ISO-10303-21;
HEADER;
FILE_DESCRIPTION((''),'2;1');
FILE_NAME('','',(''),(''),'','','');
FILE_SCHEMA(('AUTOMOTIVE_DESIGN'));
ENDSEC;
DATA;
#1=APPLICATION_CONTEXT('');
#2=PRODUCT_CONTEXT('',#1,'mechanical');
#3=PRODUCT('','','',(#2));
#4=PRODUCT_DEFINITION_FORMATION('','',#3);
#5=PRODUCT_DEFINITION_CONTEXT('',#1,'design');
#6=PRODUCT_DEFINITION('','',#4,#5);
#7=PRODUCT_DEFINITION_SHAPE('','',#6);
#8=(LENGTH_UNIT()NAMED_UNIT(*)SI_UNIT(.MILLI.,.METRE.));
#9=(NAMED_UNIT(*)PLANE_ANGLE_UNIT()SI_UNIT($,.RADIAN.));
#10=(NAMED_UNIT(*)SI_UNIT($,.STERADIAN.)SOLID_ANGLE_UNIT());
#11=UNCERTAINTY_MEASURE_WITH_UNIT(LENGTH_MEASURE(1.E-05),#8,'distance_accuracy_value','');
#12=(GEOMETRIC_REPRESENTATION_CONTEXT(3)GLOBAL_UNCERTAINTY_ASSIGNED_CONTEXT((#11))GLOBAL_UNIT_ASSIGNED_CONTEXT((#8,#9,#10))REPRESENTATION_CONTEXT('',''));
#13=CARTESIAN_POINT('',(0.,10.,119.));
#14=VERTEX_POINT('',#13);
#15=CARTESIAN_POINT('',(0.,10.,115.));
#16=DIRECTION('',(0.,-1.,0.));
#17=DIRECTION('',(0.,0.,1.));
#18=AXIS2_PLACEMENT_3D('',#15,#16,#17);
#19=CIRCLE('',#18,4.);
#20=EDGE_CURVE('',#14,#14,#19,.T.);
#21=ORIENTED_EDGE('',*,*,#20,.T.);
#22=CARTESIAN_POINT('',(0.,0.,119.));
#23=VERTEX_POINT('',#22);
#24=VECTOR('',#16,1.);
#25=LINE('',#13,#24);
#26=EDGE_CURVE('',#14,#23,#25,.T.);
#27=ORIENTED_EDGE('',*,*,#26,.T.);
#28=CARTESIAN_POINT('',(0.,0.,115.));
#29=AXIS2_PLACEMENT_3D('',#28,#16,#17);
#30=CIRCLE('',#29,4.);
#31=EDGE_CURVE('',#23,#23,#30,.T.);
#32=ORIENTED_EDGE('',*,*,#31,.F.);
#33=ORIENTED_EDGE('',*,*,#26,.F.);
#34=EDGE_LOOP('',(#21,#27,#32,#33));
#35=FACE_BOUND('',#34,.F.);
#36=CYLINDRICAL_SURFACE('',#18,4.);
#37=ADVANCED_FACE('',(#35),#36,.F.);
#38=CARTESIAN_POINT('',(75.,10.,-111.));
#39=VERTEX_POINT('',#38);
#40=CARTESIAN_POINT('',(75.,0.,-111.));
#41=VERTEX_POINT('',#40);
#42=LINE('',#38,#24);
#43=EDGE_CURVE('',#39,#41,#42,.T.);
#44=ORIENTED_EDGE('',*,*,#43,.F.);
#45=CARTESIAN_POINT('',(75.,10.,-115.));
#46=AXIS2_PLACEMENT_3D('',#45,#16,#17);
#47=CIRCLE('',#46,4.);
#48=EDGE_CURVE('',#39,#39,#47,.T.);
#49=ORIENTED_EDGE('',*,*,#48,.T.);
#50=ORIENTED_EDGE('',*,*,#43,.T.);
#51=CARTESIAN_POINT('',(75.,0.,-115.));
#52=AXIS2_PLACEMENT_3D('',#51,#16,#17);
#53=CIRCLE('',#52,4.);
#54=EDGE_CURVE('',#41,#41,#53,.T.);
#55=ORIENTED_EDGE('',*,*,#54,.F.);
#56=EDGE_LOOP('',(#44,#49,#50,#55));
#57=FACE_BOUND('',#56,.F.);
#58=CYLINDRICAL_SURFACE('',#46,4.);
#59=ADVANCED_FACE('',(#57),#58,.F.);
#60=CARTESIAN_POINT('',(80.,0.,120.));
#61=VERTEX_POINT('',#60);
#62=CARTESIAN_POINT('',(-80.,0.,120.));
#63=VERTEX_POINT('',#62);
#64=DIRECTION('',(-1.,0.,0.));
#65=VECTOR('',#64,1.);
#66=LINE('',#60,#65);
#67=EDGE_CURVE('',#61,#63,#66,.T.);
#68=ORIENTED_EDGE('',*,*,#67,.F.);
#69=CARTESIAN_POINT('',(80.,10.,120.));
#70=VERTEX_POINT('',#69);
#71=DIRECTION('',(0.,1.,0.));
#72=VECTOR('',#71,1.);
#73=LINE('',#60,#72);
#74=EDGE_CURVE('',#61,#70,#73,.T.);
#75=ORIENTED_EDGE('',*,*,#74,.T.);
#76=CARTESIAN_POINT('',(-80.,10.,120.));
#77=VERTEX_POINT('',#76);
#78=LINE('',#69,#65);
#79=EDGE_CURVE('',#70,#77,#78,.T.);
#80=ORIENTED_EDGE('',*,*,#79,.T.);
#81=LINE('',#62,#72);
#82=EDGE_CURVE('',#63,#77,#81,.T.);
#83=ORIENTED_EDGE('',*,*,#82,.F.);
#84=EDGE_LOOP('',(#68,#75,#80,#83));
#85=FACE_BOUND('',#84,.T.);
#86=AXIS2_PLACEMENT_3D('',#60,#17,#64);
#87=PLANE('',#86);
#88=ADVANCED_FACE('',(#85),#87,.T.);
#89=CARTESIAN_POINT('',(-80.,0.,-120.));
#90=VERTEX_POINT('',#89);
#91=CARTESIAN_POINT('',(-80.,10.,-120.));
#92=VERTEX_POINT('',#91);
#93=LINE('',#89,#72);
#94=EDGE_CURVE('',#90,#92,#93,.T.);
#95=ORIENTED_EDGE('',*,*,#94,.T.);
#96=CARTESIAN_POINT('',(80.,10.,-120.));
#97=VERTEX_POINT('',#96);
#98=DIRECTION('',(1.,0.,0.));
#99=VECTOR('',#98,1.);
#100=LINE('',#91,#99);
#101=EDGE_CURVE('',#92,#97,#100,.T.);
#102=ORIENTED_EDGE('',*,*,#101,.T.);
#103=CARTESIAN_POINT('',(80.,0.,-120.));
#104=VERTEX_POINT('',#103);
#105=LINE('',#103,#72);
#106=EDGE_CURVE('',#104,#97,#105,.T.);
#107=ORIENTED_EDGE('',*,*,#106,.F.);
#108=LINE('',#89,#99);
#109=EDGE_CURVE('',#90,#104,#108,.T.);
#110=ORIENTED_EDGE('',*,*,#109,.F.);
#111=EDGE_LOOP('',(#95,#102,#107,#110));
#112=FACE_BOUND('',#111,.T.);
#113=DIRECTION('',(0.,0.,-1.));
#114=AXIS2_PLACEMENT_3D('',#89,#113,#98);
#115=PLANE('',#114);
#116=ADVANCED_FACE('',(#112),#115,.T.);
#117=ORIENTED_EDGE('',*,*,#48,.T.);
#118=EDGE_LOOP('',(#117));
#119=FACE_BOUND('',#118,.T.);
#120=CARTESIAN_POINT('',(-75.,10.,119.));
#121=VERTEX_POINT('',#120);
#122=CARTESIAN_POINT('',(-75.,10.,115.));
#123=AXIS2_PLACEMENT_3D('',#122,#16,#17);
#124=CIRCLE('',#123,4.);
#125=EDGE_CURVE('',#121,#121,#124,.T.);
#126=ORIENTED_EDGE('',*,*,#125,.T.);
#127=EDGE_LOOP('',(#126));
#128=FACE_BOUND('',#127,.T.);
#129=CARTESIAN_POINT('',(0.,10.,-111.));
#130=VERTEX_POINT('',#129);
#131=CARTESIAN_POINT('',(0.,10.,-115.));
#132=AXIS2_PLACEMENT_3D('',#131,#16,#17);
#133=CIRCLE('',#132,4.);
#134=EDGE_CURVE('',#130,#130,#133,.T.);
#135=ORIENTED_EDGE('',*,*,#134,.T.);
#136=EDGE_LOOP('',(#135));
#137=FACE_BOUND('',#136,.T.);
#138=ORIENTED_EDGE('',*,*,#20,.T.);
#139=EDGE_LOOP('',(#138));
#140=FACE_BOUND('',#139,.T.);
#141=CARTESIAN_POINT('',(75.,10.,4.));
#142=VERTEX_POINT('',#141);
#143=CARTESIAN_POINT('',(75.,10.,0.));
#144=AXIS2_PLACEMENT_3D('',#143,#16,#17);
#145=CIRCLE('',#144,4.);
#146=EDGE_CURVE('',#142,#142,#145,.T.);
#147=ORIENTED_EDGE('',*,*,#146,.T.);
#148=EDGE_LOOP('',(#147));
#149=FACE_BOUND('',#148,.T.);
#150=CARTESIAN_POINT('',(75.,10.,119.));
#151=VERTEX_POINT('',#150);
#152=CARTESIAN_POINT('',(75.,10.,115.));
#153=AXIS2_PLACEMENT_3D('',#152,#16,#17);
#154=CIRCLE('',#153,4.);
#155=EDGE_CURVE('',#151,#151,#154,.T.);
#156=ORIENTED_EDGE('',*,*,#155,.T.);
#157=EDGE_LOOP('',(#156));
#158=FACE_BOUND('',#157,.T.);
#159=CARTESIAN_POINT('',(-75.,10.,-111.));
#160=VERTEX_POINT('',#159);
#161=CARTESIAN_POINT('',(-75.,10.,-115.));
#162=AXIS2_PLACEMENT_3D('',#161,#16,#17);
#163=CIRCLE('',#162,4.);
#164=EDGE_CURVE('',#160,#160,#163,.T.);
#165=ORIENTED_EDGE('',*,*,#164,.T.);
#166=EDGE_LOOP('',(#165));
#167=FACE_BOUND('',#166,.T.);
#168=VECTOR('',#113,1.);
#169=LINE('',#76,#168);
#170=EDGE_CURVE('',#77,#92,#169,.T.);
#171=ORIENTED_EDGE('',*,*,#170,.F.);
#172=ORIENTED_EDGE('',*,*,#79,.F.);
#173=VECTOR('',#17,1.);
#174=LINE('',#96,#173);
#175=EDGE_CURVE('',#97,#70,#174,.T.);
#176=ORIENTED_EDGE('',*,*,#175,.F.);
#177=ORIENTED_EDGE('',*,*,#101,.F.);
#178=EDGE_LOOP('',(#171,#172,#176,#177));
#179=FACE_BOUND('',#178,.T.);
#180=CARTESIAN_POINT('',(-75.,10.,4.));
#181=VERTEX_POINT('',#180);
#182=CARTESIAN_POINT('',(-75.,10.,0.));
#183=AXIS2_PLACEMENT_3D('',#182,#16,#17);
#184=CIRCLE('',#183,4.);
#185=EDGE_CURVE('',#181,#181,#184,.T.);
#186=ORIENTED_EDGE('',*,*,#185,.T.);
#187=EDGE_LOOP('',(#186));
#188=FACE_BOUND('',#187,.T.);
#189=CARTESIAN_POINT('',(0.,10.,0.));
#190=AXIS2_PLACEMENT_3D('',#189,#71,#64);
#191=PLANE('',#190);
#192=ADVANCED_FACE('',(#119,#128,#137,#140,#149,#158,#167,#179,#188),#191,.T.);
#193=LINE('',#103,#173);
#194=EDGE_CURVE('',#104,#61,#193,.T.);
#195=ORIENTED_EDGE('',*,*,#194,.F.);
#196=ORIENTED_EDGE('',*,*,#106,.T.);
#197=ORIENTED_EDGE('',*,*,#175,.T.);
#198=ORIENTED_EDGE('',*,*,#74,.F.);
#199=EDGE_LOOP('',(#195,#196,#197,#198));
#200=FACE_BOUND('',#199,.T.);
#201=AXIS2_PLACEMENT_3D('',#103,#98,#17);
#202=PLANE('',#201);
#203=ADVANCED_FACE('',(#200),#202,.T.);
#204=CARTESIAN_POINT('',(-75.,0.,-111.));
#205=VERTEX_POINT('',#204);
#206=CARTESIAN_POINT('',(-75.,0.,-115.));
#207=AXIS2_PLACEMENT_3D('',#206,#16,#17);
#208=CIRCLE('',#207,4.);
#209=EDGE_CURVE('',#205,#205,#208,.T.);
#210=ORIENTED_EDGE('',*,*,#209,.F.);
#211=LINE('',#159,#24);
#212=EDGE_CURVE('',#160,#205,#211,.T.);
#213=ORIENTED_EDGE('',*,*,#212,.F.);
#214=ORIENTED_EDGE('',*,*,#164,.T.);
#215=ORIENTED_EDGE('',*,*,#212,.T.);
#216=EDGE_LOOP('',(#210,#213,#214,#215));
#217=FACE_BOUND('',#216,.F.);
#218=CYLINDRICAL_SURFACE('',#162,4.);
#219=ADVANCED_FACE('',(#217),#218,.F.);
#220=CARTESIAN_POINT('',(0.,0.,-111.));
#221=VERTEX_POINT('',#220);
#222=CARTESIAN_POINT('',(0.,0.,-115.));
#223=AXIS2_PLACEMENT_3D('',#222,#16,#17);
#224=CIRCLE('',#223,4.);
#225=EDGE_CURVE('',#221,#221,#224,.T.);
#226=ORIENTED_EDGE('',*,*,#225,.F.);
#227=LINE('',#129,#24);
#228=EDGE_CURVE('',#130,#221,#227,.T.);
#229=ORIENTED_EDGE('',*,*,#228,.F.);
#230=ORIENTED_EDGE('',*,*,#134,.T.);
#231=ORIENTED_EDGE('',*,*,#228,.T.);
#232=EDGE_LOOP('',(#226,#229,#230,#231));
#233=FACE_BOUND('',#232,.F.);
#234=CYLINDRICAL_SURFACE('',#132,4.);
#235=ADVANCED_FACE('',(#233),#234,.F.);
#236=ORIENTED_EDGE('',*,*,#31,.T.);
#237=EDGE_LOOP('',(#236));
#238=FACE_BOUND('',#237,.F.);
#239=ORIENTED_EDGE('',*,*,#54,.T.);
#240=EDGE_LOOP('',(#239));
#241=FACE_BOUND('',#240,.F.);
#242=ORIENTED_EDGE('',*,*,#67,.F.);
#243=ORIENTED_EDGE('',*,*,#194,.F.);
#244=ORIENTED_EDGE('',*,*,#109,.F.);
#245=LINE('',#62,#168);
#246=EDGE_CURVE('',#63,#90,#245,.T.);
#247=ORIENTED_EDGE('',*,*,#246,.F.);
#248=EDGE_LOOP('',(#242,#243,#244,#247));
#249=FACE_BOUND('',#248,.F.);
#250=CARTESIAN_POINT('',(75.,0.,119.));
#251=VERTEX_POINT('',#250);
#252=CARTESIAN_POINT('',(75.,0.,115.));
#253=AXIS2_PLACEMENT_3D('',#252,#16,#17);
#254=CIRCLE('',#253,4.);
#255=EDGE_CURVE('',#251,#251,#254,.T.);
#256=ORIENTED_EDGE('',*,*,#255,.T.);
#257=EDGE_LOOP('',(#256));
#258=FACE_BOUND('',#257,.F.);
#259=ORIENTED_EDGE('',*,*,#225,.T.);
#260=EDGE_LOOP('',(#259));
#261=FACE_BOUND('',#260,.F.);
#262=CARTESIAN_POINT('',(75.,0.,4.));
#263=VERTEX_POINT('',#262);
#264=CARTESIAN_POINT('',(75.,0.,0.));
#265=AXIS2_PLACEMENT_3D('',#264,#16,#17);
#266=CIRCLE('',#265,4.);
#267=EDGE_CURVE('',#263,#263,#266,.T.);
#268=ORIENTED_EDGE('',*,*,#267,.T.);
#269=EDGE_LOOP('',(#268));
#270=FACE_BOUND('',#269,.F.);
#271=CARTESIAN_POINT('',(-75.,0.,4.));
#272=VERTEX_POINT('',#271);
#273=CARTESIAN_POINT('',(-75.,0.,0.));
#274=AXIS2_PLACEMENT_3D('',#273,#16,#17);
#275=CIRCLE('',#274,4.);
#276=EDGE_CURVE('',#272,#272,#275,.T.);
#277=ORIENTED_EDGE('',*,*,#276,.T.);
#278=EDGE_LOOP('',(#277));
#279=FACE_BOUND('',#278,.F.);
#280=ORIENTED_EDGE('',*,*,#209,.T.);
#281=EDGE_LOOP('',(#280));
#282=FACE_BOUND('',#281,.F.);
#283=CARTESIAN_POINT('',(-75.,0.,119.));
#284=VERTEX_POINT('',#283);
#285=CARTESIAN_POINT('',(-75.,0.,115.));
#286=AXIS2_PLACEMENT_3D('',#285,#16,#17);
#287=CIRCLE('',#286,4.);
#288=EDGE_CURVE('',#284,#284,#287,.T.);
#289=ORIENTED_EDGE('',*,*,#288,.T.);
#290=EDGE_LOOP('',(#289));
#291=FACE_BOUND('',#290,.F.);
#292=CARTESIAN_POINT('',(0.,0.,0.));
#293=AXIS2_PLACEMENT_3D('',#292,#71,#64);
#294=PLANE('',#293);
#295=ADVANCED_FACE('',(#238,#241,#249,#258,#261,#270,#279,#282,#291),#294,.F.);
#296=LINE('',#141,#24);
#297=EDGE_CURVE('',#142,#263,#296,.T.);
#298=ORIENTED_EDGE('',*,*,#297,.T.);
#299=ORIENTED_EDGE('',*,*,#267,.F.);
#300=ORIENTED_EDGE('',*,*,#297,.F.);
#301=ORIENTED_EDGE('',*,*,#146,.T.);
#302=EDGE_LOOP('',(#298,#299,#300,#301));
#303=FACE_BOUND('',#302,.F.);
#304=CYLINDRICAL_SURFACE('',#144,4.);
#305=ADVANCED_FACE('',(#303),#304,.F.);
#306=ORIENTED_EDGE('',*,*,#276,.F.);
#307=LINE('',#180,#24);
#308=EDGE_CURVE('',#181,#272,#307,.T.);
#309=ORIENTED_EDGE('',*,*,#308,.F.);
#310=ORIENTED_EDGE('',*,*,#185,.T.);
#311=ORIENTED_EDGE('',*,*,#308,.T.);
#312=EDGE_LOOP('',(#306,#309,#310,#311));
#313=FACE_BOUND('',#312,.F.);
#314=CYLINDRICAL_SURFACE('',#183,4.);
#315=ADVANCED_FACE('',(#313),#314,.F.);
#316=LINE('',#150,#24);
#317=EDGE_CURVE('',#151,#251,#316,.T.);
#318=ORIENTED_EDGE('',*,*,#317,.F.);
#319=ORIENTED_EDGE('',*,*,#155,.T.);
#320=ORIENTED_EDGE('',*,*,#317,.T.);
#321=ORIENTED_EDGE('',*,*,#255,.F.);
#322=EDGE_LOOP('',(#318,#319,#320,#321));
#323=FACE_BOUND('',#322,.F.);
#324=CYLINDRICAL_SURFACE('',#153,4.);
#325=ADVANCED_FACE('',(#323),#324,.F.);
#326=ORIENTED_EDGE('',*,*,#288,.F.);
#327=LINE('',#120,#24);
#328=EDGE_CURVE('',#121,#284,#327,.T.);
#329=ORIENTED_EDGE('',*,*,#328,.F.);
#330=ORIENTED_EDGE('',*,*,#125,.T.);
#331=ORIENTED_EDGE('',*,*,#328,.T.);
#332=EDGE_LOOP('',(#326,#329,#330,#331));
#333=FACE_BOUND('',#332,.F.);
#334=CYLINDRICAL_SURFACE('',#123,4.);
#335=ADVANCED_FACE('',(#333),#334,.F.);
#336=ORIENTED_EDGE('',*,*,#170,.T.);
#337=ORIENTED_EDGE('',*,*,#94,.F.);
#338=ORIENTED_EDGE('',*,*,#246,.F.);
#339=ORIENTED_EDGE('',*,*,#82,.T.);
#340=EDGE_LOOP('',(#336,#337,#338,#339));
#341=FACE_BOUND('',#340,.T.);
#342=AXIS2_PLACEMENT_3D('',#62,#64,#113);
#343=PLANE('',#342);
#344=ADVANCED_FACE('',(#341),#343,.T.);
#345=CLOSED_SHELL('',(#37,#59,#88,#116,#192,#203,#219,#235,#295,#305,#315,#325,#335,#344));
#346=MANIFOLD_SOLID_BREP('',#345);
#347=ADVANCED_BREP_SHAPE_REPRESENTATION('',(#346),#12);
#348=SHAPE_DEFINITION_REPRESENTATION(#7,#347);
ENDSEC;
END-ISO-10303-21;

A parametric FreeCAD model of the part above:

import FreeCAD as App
import Part
import Sketcher

V = App.Vector

doc = App.newDocument("Part")
params = doc.addObject("Spreadsheet::Sheet", "Params")
for row, (alias, value) in enumerate([
    ("sketch1_width", "160 mm"),
    ("sketch1_height", "240 mm"),
    ("pad1_length", "10 mm"),
    ("sketch2_diameter", "8 mm"),
    ("hole_diameter", "8 mm"),
    ("hole_depth", "15 mm"),
], start=1):
    params.set(f"A{row}", alias)
    params.set(f"B{row}", "=" + value)
    params.setAlias(f"B{row}", alias)

body = doc.addObject("PartDesign::Body", "Body")

# Sketch on XZ plane
sketch1 = body.newObject("Sketcher::SketchObject", "Sketch")
sketch1.AttachmentSupport = (doc.getObject("XZ_Plane"), [""])
sketch1.MapMode = "FlatFace"
sketch1.addGeometry(Part.LineSegment(V(-80, 120, 0), V(80, 120, 0)), False)
sketch1.addGeometry(Part.LineSegment(V(80, 120, 0), V(80, -120, 0)), False)
sketch1.addGeometry(Part.LineSegment(V(80, -120, 0), V(-80, -120, 0)), False)
sketch1.addGeometry(Part.LineSegment(V(-80, -120, 0), V(-80, 120, 0)), False)
sketch1.addConstraint(Sketcher.Constraint("Coincident", 0, 2, 1, 1))
sketch1.addConstraint(Sketcher.Constraint("Coincident", 1, 2, 2, 1))
sketch1.addConstraint(Sketcher.Constraint("Coincident", 2, 2, 3, 1))
sketch1.addConstraint(Sketcher.Constraint("Coincident", 3, 2, 0, 1))
sketch1.addConstraint(Sketcher.Constraint("Horizontal", 0))
sketch1.addConstraint(Sketcher.Constraint("Vertical", 1))
sketch1.addConstraint(Sketcher.Constraint("Horizontal", 2))
sketch1.addConstraint(Sketcher.Constraint("Vertical", 3))
sketch1.addConstraint(Sketcher.Constraint("Symmetric", 0, 2, 2, 2, -1, 1))
sketch1.addConstraint(Sketcher.Constraint("DistanceX", 0, 1, 0, 2, 160.0))
sketch1.addConstraint(Sketcher.Constraint("DistanceY", 1, 2, 1, 1, 240.0))
sketch1.setExpression("Constraints[9]", "Params.sketch1_width")
sketch1.setExpression("Constraints[10]", "Params.sketch1_height")
pad1 = body.newObject("PartDesign::Pad", "Pad")
pad1.Profile = sketch1
pad1.setExpression("Length", "Params.pad1_length")
pad1.Reversed = True

# Sketch on XZ plane
sketch2 = body.newObject("Sketcher::SketchObject", "Sketch001")
sketch2.AttachmentSupport = (doc.getObject("XZ_Plane"), [""])
sketch2.MapMode = "FlatFace"
sketch2.AttachmentOffset = App.Placement(V(0, 0, -10), App.Rotation())
sketch2.addGeometry(Part.Circle(V(-75, 0, 0), V(0, 0, 1), 4), False)
sketch2.addGeometry(Part.Circle(V(75, 0, 0), V(0, 0, 1), 4), False)
sketch2.addGeometry(Part.Circle(V(0, 115, 0), V(0, 0, 1), 4), False)
sketch2.addGeometry(Part.Circle(V(0, -115, 0), V(0, 0, 1), 4), False)
sketch2.addGeometry(Part.Circle(V(-75, -115, 0), V(0, 0, 1), 4), False)
sketch2.addGeometry(Part.Circle(V(75, -115, 0), V(0, 0, 1), 4), False)
sketch2.addGeometry(Part.Circle(V(75, 115, 0), V(0, 0, 1), 4), False)
sketch2.addGeometry(Part.Circle(V(-75, 115, 0), V(0, 0, 1), 4), False)
sketch2.addConstraint(Sketcher.Constraint("Equal", 0, 1))
sketch2.addConstraint(Sketcher.Constraint("Equal", 1, 2))
sketch2.addConstraint(Sketcher.Constraint("Equal", 2, 3))
sketch2.addConstraint(Sketcher.Constraint("Equal", 3, 4))
sketch2.addConstraint(Sketcher.Constraint("Equal", 4, 5))
sketch2.addConstraint(Sketcher.Constraint("Equal", 5, 6))
sketch2.addConstraint(Sketcher.Constraint("Equal", 6, 7))
sketch2.addConstraint(Sketcher.Constraint("Symmetric", 0, 3, 1, 3, -1, 1))
sketch2.addConstraint(Sketcher.Constraint("Symmetric", 2, 3, 3, 3, -1, 1))
sketch2.addConstraint(Sketcher.Constraint("Symmetric", 4, 3, 6, 3, -1, 1))
sketch2.addConstraint(Sketcher.Constraint("Symmetric", 5, 3, 7, 3, -1, 1))
sketch2.addConstraint(Sketcher.Constraint("Symmetric", 4, 3, 5, 3, -2))
sketch2.addConstraint(Sketcher.Constraint("PointOnObject", 0, 3, -1))
sketch2.addConstraint(Sketcher.Constraint("PointOnObject", 2, 3, -2))
sketch2.addConstraint(Sketcher.Constraint("Horizontal", 3, 3, 4, 3))
sketch2.addConstraint(Sketcher.Constraint("Vertical", 0, 3, 4, 3))
sketch2.addConstraint(Sketcher.Constraint("Diameter", 0, 8.0))
sketch2.addConstraint(Sketcher.Constraint("DistanceX", 0, 3, -1, 1, 75.0))
sketch2.addConstraint(Sketcher.Constraint("DistanceY", -1, 1, 2, 3, 115.0))
sketch2.setExpression("Constraints[16]", "Params.sketch2_diameter")
doc.recompute()
hole = body.newObject("PartDesign::Hole", "Hole")
hole.Profile = sketch2
hole.ThreadType = "None"
hole.setExpression("Diameter", "Params.hole_diameter")
hole.DepthType = "Dimension"
hole.setExpression("Depth", "Params.hole_depth")
hole.DrillPoint = "Angled"
hole.DrillPointAngle = 118
hole.Reversed = True

doc.recompute()
